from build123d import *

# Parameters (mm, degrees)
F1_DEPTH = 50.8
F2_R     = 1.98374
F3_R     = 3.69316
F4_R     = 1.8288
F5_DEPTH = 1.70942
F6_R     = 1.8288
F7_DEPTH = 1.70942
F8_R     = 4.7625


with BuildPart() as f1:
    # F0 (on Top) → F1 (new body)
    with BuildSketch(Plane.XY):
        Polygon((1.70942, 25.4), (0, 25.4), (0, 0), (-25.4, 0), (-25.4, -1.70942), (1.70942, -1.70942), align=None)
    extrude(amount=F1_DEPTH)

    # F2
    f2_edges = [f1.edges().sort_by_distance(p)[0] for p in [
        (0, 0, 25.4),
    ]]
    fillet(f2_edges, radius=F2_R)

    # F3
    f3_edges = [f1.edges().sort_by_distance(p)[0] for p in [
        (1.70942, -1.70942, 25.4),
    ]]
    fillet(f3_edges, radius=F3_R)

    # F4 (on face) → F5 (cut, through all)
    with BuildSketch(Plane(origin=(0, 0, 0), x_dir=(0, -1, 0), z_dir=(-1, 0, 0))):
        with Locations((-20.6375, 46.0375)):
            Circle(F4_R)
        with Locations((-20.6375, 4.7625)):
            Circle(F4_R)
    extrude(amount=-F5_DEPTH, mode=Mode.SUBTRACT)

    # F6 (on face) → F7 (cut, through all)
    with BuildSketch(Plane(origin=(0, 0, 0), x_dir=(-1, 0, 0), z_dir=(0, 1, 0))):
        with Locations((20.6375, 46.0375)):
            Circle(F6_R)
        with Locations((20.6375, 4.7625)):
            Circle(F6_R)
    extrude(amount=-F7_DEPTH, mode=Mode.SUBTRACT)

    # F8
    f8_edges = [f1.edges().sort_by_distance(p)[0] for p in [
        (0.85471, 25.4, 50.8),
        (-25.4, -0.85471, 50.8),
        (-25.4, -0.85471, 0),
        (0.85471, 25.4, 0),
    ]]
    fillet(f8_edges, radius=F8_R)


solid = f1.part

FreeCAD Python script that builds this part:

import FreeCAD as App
import Part
import Sketcher
Q = App.Units.Quantity


def edges_at(feature, points):
    """Names of the edges that pass closest to the given points."""
    edges = feature.Shape.Edges
    near = lambda p: min(range(len(edges)), key=lambda i: edges[i].distToShape(Part.Vertex(*p))[0])
    return sorted({f"Edge{near(p) + 1}" for p in points})


def add_polygon(sketch, points):
    """Adds a closed chain of lines whose ends are joined by coincident constraints."""
    first, n = sketch.GeometryCount, len(points)
    for a, b in zip(points, points[1:] + points[:1]):
        sketch.addGeometry(Part.LineSegment(App.Vector(*a, 0), App.Vector(*b, 0)), False)
    for i in range(n):
        sketch.addConstraint(Sketcher.Constraint("Coincident", first + i, 2, first + (i + 1) % n, 1))

doc = App.newDocument("Part")
params = doc.addObject("Spreadsheet::Sheet", "Params")
for row, (alias, value) in enumerate([
    ("sketch1_width", "1 in"),
    ("pad1_length", "2 in"),
    ("fillet_radius", "0.0781 in"),
    ("fillet2_radius", "0.1454 in"),
    ("sketch2_diameter", "0.144 in"),
    ("sketch3_diameter", "0.144 in"),
    ("fillet3_radius", "0.1875 in"),
], start=1):
    params.set(f"A{row}", alias)
    params.set(f"B{row}", "=" + value)
    params.setAlias(f"B{row}", alias)

body = doc.addObject("PartDesign::Body", "Body")

sketch1 = doc.addObject("Sketcher::SketchObject", "Sketch")
body.addObject(sketch1)
sketch1.AttachmentSupport = (doc.XY_Plane, [""])
sketch1.MapMode = "FlatFace"
add_polygon(sketch1, [(1.7, 25.4), (0, 25.4), (0, 0), (-25.4, 0), (-25.4, -1.7), (1.7, -1.7)])
sketch1.addConstraint([
    Sketcher.Constraint("Horizontal", 0),
    Sketcher.Constraint("Vertical", 1),
    Sketcher.Constraint("Horizontal", 2),
    Sketcher.Constraint("Vertical", 3),
    Sketcher.Constraint("Horizontal", 4),
    Sketcher.Constraint("Vertical", 5),
    Sketcher.Constraint("Coincident", 1, 2, -1, 1),
    Sketcher.Constraint("Equal", 2, 1),
    Sketcher.Constraint("Equal", 0, 3),
    Sketcher.Constraint("DistanceX", 2, 2, 2, 1, Q("1 in")),
    Sketcher.Constraint("DistanceX", 0, 2, 0, 1, Q("0.0673 in")),
])
sketch1.setExpression("Constraints[15]", "Params.sketch1_width")
pad1 = doc.addObject("PartDesign::Pad", "Pad")
body.addObject(pad1)
pad1.Profile = sketch1
pad1.setExpression("Length", "Params.pad1_length")
doc.recompute()

fillet = doc.addObject("PartDesign::Fillet", "Fillet")
body.addObject(fillet)
fillet.Base = (pad1, edges_at(pad1, [(0, 0, 25.4)]))
fillet.setExpression("Radius", "Params.fillet_radius")
doc.recompute()

fillet2 = doc.addObject("PartDesign::Fillet", "Fillet001")
body.addObject(fillet2)
fillet2.Base = (fillet, edges_at(fillet, [(1.709, -1.709, 25.4)]))
fillet2.setExpression("Radius", "Params.fillet2_radius")

sketch2 = doc.addObject("Sketcher::SketchObject", "Sketch001")
body.addObject(sketch2)
sketch2.AttachmentSupport = (doc.YZ_Plane, [""])
sketch2.MapMode = "FlatFace"
sketch2.addGeometry([
    Part.Circle(App.Vector(20.6, 46, 0), App.Vector(0, 0, 1), 1.8),
    Part.Circle(App.Vector(20.6, 4.8, 0), App.Vector(0, 0, 1), 1.8),
], False)
sketch2.addConstraint([
    Sketcher.Constraint("Equal", 0, 1),
    Sketcher.Constraint("Vertical", 0, 3, 1, 3),
    Sketcher.Constraint("Diameter", 0, Q("0.144 in")),
    Sketcher.Constraint("DistanceX", -1, 1, 0, 3, Q("0.8125 in")),
    Sketcher.Constraint("DistanceY", -1, 1, 0, 3, Q("1.8125 in")),
    Sketcher.Constraint("DistanceY", -1, 1, 1, 3, Q("0.1875 in")),
])
sketch2.setExpression("Constraints[2]", "Params.sketch2_diameter")
pocket1 = doc.addObject("PartDesign::Pocket", "Pocket")
body.addObject(pocket1)
pocket1.Profile = sketch2
pocket1.Type = "ThroughAll"
pocket1.Reversed = True

sketch3 = doc.addObject("Sketcher::SketchObject", "Sketch002")
body.addObject(sketch3)
sketch3.AttachmentSupport = (doc.XZ_Plane, [""])
sketch3.MapMode = "FlatFace"
sketch3.addGeometry([
    Part.Circle(App.Vector(-20.6, 46, 0), App.Vector(0, 0, 1), 1.8),
    Part.Circle(App.Vector(-20.6, 4.8, 0), App.Vector(0, 0, 1), 1.8),
], False)
sketch3.addConstraint([
    Sketcher.Constraint("Equal", 0, 1),
    Sketcher.Constraint("Vertical", 0, 3, 1, 3),
    Sketcher.Constraint("Diameter", 0, Q("0.144 in")),
    Sketcher.Constraint("DistanceX", 0, 3, -1, 1, Q("0.8125 in")),
    Sketcher.Constraint("DistanceY", -1, 1, 0, 3, Q("1.8125 in")),
    Sketcher.Constraint("DistanceY", -1, 1, 1, 3, Q("0.1875 in")),
])
sketch3.setExpression("Constraints[2]", "Params.sketch3_diameter")
pocket2 = doc.addObject("PartDesign::Pocket", "Pocket001")
body.addObject(pocket2)
pocket2.Profile = sketch3
pocket2.Type = "ThroughAll"
pocket2.Reversed = True
doc.recompute()

fillet3 = doc.addObject("PartDesign::Fillet", "Fillet002")
body.addObject(fillet3)
fillet3.Base = (pocket2, edges_at(pocket2, [
    (0.855, 25.4, 50.8),
    (-25.4, -0.855, 50.8),
    (-25.4, -0.855, 0),
    (0.855, 25.4, 0),
]))
fillet3.setExpression("Radius", "Params.fillet3_radius")

doc.recompute()
